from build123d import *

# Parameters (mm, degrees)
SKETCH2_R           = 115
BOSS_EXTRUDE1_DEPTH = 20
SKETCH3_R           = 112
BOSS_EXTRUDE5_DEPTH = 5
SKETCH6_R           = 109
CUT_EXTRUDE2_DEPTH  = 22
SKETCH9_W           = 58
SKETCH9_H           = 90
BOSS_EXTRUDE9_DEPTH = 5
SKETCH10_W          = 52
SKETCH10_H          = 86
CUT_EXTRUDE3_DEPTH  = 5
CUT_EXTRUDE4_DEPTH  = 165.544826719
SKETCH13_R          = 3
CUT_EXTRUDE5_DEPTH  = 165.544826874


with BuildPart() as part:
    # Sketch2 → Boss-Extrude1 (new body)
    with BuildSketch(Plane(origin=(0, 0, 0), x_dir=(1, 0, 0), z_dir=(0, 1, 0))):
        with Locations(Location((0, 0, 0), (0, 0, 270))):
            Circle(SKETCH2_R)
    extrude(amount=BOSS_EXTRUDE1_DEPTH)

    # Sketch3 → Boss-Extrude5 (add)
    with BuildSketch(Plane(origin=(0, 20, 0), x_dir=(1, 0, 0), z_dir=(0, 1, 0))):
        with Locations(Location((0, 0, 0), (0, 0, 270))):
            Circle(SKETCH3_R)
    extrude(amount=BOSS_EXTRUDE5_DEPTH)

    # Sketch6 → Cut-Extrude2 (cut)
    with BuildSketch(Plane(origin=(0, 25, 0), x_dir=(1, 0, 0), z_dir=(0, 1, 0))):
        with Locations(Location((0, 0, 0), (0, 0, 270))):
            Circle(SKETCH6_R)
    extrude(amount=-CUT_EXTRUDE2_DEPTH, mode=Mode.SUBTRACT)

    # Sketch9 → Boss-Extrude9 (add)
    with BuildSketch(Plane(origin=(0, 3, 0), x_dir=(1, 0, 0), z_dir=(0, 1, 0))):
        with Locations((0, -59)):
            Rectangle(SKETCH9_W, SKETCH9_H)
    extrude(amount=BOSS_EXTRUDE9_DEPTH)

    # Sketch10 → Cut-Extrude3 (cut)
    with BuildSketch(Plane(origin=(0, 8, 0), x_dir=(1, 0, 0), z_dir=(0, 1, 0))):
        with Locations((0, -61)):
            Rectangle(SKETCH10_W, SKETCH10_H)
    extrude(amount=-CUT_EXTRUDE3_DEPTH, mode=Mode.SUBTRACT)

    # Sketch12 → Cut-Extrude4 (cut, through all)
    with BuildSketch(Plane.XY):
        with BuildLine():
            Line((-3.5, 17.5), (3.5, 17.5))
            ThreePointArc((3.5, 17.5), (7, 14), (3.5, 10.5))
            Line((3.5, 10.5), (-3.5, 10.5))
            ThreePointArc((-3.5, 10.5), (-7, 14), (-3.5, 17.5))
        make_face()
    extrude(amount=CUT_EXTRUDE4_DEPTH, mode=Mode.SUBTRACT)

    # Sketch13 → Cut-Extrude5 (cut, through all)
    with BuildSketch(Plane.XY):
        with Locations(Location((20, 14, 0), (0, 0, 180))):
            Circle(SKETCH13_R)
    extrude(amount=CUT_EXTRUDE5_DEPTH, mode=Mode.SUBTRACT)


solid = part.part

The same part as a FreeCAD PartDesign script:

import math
import FreeCAD as App
import Part
import Sketcher


def add_polygon(sketch, points):
    """Adds a closed chain of lines whose ends are joined by coincident constraints."""
    first, n = sketch.GeometryCount, len(points)
    for a, b in zip(points, points[1:] + points[:1]):
        sketch.addGeometry(Part.LineSegment(App.Vector(*a, 0), App.Vector(*b, 0)), False)
    for i in range(n):
        sketch.addConstraint(Sketcher.Constraint("Coincident", first + i, 2, first + (i + 1) % n, 1))

doc = App.newDocument("Part")
body = doc.addObject("PartDesign::Body", "Body")

# Sketch on XZ plane
sketch1 = body.newObject("Sketcher::SketchObject", "Sketch")
sketch1.AttachmentSupport = (doc.getObject("XZ_Plane"), [""])
sketch1.MapMode = "FlatFace"
sketch1.addGeometry(Part.Circle(App.Vector(0, 0, 0), App.Vector(0, 0, 1), 115), False)
sketch1.addConstraint([
    Sketcher.Constraint("Coincident", 0, 3, -1, 1),
    Sketcher.Constraint("Diameter", 0, 230.0),
])
pad1 = body.newObject("PartDesign::Pad", "Pad")
pad1.Profile = sketch1
pad1.Length = 20
pad1.Reversed = True

# Sketch on XZ plane
sketch2 = body.newObject("Sketcher::SketchObject", "Sketch001")
sketch2.AttachmentSupport = (doc.getObject("XZ_Plane"), [""])
sketch2.MapMode = "FlatFace"
sketch2.AttachmentOffset = App.Placement(App.Vector(0, 0, -20), App.Rotation())
sketch2.addGeometry(Part.Circle(App.Vector(0, 0, 0), App.Vector(0, 0, 1), 112), False)
sketch2.addConstraint([
    Sketcher.Constraint("Coincident", 0, 3, -1, 1),
    Sketcher.Constraint("Diameter", 0, 224.0),
])
pad2 = body.newObject("PartDesign::Pad", "Pad001")
pad2.Profile = sketch2
pad2.Length = 5
pad2.Reversed = True

# Sketch on XZ plane
sketch3 = body.newObject("Sketcher::SketchObject", "Sketch002")
sketch3.AttachmentSupport = (doc.getObject("XZ_Plane"), [""])
sketch3.MapMode = "FlatFace"
sketch3.AttachmentOffset = App.Placement(App.Vector(0, 0, -25), App.Rotation())
sketch3.addGeometry(Part.Circle(App.Vector(0, 0, 0), App.Vector(0, 0, 1), 109), False)
sketch3.addConstraint([
    Sketcher.Constraint("Coincident", 0, 3, -1, 1),
    Sketcher.Constraint("Diameter", 0, 218.0),
])
pocket1 = body.newObject("PartDesign::Pocket", "Pocket")
pocket1.Profile = sketch3
pocket1.Length = 22
pocket1.Reversed = True

# Sketch on XZ plane
sketch4 = body.newObject("Sketcher::SketchObject", "Sketch003")
sketch4.AttachmentSupport = (doc.getObject("XZ_Plane"), [""])
sketch4.MapMode = "FlatFace"
sketch4.AttachmentOffset = App.Placement(App.Vector(0, 0, -3), App.Rotation())
add_polygon(sketch4, [(-29, 14), (-29, 104), (29, 104), (29, 14)])  # lines 0-3
sketch4.addConstraint([
    Sketcher.Constraint("Vertical", 0),
    Sketcher.Constraint("Horizontal", 1),
    Sketcher.Constraint("Vertical", 2),
    Sketcher.Constraint("Horizontal", 3),
    Sketcher.Constraint("DistanceX", 1, 1, 1, 2, 58.0),
    Sketcher.Constraint("DistanceY", 0, 1, 0, 2, 90.0),
    Sketcher.Constraint("DistanceX", 0, 2, -1, 1, 29.0),
    Sketcher.Constraint("DistanceY", -1, 1, 0, 2, 104.0),
])
pad3 = body.newObject("PartDesign::Pad", "Pad002")
pad3.Profile = sketch4
pad3.Length = 5
pad3.Reversed = True

# Sketch on XZ plane
sketch5 = body.newObject("Sketcher::SketchObject", "Sketch004")
sketch5.AttachmentSupport = (doc.getObject("XZ_Plane"), [""])
sketch5.MapMode = "FlatFace"
sketch5.AttachmentOffset = App.Placement(App.Vector(0, 0, -8), App.Rotation())
add_polygon(sketch5, [(-26, 18), (-26, 104), (26, 104), (26, 18)])  # lines 0-3
sketch5.addConstraint([
    Sketcher.Constraint("Vertical", 0),
    Sketcher.Constraint("Horizontal", 1),
    Sketcher.Constraint("Vertical", 2),
    Sketcher.Constraint("Horizontal", 3),
    Sketcher.Constraint("DistanceX", 1, 1, 1, 2, 52.0),
    Sketcher.Constraint("DistanceY", 0, 1, 0, 2, 86.0),
    Sketcher.Constraint("DistanceX", 0, 2, -1, 1, 26.0),
    Sketcher.Constraint("DistanceY", -1, 1, 0, 2, 104.0),
])
pocket2 = body.newObject("PartDesign::Pocket", "Pocket001")
pocket2.Profile = sketch5
pocket2.Length = 5
pocket2.Reversed = True

# Sketch on XY plane
sketch6 = body.newObject("Sketcher::SketchObject", "Sketch005")
sketch6.AttachmentSupport = (doc.getObject("XY_Plane"), [""])
sketch6.MapMode = "FlatFace"
sketch6.addGeometry([
    Part.LineSegment(App.Vector(3.5, 17.5, 0), App.Vector(-3.5, 17.5, 0)),
    Part.ArcOfCircle(Part.Circle(App.Vector(-3.5, 14, 0), App.Vector(0, 0, 1), 3.5), math.radians(90), math.radians(270)),
    Part.LineSegment(App.Vector(-3.5, 10.5, 0), App.Vector(3.5, 10.5, 0)),
    Part.ArcOfCircle(Part.Circle(App.Vector(3.5, 14, 0), App.Vector(0, 0, 1), 3.5), math.radians(-90), math.radians(90)),
], False)
sketch6.addConstraint([
    Sketcher.Constraint("Tangent", 0, 2, 1, 1),
    Sketcher.Constraint("Tangent", 1, 2, 2, 1),
    Sketcher.Constraint("Tangent", 2, 2, 3, 1),
    Sketcher.Constraint("Tangent", 3, 2, 0, 1),
    Sketcher.Constraint("Horizontal", 0),
    Sketcher.Constraint("Horizontal", 2),
    Sketcher.Constraint("Radius", 1, 3.5),
    Sketcher.Constraint("DistanceX", 0, 2, 0, 1, 7.0),
    Sketcher.Constraint("DistanceY", -1, 1, 1, 3, 14.0),
    Sketcher.Constraint("DistanceX", 1, 3, -1, 1, 3.5),
])
pocket3 = body.newObject("PartDesign::Pocket", "Pocket002")
pocket3.Profile = sketch6
pocket3.Type = "ThroughAll"
pocket3.Reversed = True

# Sketch on XY plane
sketch7 = body.newObject("Sketcher::SketchObject", "Sketch006")
sketch7.AttachmentSupport = (doc.getObject("XY_Plane"), [""])
sketch7.MapMode = "FlatFace"
sketch7.addGeometry(Part.Circle(App.Vector(20, 14, 0), App.Vector(0, 0, 1), 3), False)
sketch7.addConstraint([
    Sketcher.Constraint("Diameter", 0, 6.0),
    Sketcher.Constraint("DistanceX", -1, 1, 0, 3, 20.0),
    Sketcher.Constraint("DistanceY", -1, 1, 0, 3, 14.0),
])
pocket4 = body.newObject("PartDesign::Pocket", "Pocket003")
pocket4.Profile = sketch7
pocket4.Type = "ThroughAll"
pocket4.Reversed = True

doc.recompute()
